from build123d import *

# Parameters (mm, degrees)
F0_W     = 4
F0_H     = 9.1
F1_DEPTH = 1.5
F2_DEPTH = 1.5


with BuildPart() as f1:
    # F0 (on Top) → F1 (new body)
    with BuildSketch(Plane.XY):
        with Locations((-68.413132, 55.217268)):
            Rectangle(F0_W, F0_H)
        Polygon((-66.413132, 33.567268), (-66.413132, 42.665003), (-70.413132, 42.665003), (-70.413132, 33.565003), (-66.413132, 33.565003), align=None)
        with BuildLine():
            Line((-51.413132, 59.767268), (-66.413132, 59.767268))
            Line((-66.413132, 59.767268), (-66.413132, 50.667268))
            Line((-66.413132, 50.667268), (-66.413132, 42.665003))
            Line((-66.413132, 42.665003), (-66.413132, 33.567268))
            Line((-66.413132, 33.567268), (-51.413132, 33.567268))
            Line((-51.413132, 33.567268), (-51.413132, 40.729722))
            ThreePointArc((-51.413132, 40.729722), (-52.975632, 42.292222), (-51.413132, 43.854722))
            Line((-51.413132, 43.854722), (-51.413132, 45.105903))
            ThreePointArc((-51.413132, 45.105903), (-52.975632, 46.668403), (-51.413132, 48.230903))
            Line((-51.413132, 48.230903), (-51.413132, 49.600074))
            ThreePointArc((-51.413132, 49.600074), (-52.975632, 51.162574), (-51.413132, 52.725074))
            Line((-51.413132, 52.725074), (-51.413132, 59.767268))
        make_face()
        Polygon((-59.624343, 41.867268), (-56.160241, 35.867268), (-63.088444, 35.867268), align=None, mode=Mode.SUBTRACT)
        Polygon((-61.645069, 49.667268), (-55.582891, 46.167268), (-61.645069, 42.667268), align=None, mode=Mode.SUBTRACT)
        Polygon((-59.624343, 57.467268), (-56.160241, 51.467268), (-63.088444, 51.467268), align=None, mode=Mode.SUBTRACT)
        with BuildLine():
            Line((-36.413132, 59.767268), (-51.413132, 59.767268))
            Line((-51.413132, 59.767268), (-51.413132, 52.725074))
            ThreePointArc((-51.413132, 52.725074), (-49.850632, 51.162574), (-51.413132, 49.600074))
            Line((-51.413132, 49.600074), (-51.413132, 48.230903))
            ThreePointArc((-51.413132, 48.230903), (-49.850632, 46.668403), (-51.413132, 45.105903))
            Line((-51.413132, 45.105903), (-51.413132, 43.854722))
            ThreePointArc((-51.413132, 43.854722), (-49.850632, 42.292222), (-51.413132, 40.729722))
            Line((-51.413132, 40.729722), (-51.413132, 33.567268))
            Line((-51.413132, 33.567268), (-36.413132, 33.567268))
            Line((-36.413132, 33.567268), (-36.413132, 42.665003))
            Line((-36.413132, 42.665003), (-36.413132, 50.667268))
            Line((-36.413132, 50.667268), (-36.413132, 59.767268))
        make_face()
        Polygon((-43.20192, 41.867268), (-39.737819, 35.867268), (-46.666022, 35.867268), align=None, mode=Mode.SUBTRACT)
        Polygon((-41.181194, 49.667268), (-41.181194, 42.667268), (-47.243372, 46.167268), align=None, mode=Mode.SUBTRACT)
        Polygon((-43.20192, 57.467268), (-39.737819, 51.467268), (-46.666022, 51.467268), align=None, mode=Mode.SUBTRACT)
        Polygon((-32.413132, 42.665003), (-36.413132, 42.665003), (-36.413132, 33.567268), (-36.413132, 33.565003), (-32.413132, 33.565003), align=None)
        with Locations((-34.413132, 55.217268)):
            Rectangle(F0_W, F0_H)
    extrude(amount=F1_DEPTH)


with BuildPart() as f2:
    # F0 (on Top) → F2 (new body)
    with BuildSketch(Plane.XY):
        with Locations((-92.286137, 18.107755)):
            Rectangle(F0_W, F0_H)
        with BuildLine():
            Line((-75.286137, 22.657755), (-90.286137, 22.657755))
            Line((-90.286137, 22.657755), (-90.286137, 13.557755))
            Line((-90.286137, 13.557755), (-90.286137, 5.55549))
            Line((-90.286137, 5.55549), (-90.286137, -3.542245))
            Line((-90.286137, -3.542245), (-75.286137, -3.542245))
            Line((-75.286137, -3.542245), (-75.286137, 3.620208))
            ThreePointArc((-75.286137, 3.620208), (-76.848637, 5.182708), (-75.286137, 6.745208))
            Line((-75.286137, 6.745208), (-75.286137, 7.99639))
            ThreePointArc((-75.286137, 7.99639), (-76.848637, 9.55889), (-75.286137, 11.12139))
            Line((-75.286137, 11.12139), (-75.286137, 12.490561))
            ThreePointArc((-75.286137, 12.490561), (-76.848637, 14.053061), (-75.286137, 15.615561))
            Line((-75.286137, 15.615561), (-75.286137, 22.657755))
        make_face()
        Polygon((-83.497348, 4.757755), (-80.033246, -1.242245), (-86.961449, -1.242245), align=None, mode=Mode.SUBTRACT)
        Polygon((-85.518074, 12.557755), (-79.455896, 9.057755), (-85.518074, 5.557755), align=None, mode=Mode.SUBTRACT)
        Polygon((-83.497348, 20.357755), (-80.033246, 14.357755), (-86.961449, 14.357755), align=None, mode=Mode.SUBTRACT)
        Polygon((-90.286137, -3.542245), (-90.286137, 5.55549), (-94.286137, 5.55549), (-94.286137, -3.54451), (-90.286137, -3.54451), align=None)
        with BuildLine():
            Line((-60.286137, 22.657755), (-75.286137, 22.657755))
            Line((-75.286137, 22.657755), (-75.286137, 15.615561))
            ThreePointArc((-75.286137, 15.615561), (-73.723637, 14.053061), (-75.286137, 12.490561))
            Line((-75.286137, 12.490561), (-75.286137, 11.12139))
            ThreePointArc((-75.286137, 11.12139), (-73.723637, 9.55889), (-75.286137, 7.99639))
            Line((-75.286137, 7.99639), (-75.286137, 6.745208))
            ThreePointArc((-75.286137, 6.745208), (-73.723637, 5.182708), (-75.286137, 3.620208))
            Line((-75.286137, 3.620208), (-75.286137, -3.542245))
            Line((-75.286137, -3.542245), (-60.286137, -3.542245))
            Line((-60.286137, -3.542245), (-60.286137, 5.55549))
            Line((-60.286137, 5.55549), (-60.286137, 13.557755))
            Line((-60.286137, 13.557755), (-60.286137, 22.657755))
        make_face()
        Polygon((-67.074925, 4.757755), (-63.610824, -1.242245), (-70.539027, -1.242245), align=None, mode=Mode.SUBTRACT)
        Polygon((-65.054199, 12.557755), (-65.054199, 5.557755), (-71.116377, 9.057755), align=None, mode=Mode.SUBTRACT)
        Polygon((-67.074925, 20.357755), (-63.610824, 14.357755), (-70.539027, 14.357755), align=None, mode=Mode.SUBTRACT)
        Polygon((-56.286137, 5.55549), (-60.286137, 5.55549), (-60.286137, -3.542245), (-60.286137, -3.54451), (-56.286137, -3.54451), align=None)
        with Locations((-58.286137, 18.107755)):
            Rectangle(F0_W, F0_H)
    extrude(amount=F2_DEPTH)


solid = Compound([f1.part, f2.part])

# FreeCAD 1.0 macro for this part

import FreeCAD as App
import Part
import Sketcher
Q = App.Units.Quantity


def add_polygon(sketch, points):
    """Adds a closed chain of lines whose ends are joined by coincident constraints."""
    first, n = sketch.GeometryCount, len(points)
    for a, b in zip(points, points[1:] + points[:1]):
        sketch.addGeometry(Part.LineSegment(App.Vector(*a, 0), App.Vector(*b, 0)), False)
    for i in range(n):
        sketch.addConstraint(Sketcher.Constraint("Coincident", first + i, 2, first + (i + 1) % n, 1))

doc = App.newDocument("Part")
body = doc.addObject("PartDesign::Body", "Body")

sketch1 = doc.addObject("Sketcher::SketchObject", "Sketch")
body.addObject(sketch1)
sketch1.AttachmentSupport = (doc.XY_Plane, [""])
sketch1.MapMode = "FlatFace"
add_polygon(sketch1, [(-70.413132, 59.767268), (-70.413132, 50.667268), (-66.413132, 50.667268), (-66.413132, 42.665003), (-70.413132, 42.665003), (-70.413132, 33.565003), (-66.413132, 33.565003), (-66.413132, 33.567268), (-36.413132, 33.567268), (-36.413132, 33.565003), (-32.413132, 33.565003), (-32.413132, 42.665003), (-36.413132, 42.665003), (-36.413132, 50.667268), (-32.413132, 50.667268), (-32.413132, 59.767268)])
add_polygon(sketch1, [(-63.088444, 35.867268), (-59.624343, 41.867268), (-56.160241, 35.867268)])
add_polygon(sketch1, [(-61.645069, 42.667268), (-61.645069, 49.667268), (-55.582891, 46.167268)])
sketch1.addGeometry(Part.Circle(App.Vector(-51.413132, 42.292222, 0), App.Vector(0, 0, 1), 1.5625), False)
add_polygon(sketch1, [(-46.666022, 35.867268), (-43.20192, 41.867268), (-39.737819, 35.867268)])
add_polygon(sketch1, [(-47.243372, 46.167268), (-41.181194, 49.667268), (-41.181194, 42.667268)])
sketch1.addGeometry(Part.Circle(App.Vector(-51.413132, 46.668403, 0), App.Vector(0, 0, 1), 1.5625), False)
sketch1.addGeometry(Part.Circle(App.Vector(-51.413132, 51.162574, 0), App.Vector(0, 0, 1), 1.5625), False)
add_polygon(sketch1, [(-63.088444, 51.467268), (-59.624343, 57.467268), (-56.160241, 51.467268)])
add_polygon(sketch1, [(-46.666022, 51.467268), (-43.20192, 57.467268), (-39.737819, 51.467268)])
sketch1.addConstraint(Sketcher.Constraint("Vertical", 0))
sketch1.addConstraint(Sketcher.Constraint("Horizontal", 1))
sketch1.addConstraint(Sketcher.Constraint("Vertical", 2))
sketch1.addConstraint(Sketcher.Constraint("Horizontal", 3))
sketch1.addConstraint(Sketcher.Constraint("Vertical", 4))
sketch1.addConstraint(Sketcher.Constraint("Horizontal", 5))
sketch1.addConstraint(Sketcher.Constraint("Vertical", 6))
sketch1.addConstraint(Sketcher.Constraint("Horizontal", 7))
sketch1.addConstraint(Sketcher.Constraint("Vertical", 8))
sketch1.addConstraint(Sketcher.Constraint("Horizontal", 9))
sketch1.addConstraint(Sketcher.Constraint("Vertical", 10))
sketch1.addConstraint(Sketcher.Constraint("Horizontal", 11))
sketch1.addConstraint(Sketcher.Constraint("Vertical", 12))
sketch1.addConstraint(Sketcher.Constraint("Horizontal", 13))
sketch1.addConstraint(Sketcher.Constraint("Vertical", 14))
sketch1.addConstraint(Sketcher.Constraint("Horizontal", 15))
sketch1.addConstraint(Sketcher.Constraint("Horizontal", 18))
sketch1.addConstraint(Sketcher.Constraint("Vertical", 19))
sketch1.addConstraint(Sketcher.Constraint("Horizontal", 25))
sketch1.addConstraint(Sketcher.Constraint("Vertical", 27))
sketch1.addConstraint(Sketcher.Constraint("Horizontal", 33))
sketch1.addConstraint(Sketcher.Constraint("Horizontal", 36))
sketch1.addConstraint(Sketcher.Constraint("Equal", 22, 29))
sketch1.addConstraint(Sketcher.Constraint("Equal", 29, 30))
sketch1.addConstraint(Sketcher.Constraint("Perpendicular", 16, 20))
sketch1.addConstraint(Sketcher.Constraint("Perpendicular", 17, 21))
sketch1.addConstraint(Sketcher.Constraint("Perpendicular", 20, 23))
sketch1.addConstraint(Sketcher.Constraint("Perpendicular", 21, 24))
sketch1.addConstraint(Sketcher.Constraint("Perpendicular", 24, 26))
sketch1.addConstraint(Sketcher.Constraint("Perpendicular", 23, 28))
sketch1.addConstraint(Sketcher.Constraint("Perpendicular", 28, 31))
sketch1.addConstraint(Sketcher.Constraint("Perpendicular", 26, 32))
sketch1.addConstraint(Sketcher.Constraint("Parallel", 31, 34))
sketch1.addConstraint(Sketcher.Constraint("Parallel", 32, 35))
sketch1.addConstraint(Sketcher.Constraint("Horizontal", 5, 2, 8, 2))
sketch1.addConstraint(Sketcher.Constraint("Horizontal", 3, 2, 10, 2))
sketch1.addConstraint(Sketcher.Constraint("Horizontal", 1, 2, 12, 2))
sketch1.addConstraint(Sketcher.Constraint("Horizontal", 16, 2, 23, 2))
sketch1.addConstraint(Sketcher.Constraint("Horizontal", 18, 2, 24, 2))
sketch1.addConstraint(Sketcher.Constraint("Horizontal", 19, 2, 26, 2))
sketch1.addConstraint(Sketcher.Constraint("Horizontal", 21, 2, 27, 2))
sketch1.addConstraint(Sketcher.Constraint("Horizontal", 20, 2, 28, 2))
sketch1.addConstraint(Sketcher.Constraint("Horizontal", 31, 2, 34, 2))
sketch1.addConstraint(Sketcher.Constraint("Horizontal", 33, 2, 35, 2))
sketch1.addConstraint(Sketcher.Constraint("Vertical", 22, 3, 29, 3))
sketch1.addConstraint(Sketcher.Constraint("Vertical", 29, 3, 30, 3))
sketch1.addConstraint(Sketcher.Constraint("Vertical", 0, 2, 3, 2))
sketch1.addConstraint(Sketcher.Constraint("Vertical", 2, 2, 5, 2))
sketch1.addConstraint(Sketcher.Constraint("Vertical", 8, 2, 11, 2))
sketch1.addConstraint(Sketcher.Constraint("Vertical", 10, 2, 13, 2))
sketch1.addConstraint(Sketcher.Constraint("Vertical", 16, 2, 31, 2))
sketch1.addConstraint(Sketcher.Constraint("Vertical", 17, 2, 32, 2))
sketch1.addConstraint(Sketcher.Constraint("Vertical", 23, 2, 34, 2))
sketch1.addConstraint(Sketcher.Constraint("Equal", 5, 9))
sketch1.addConstraint(Sketcher.Constraint("Equal", 0, 4))
sketch1.addConstraint(Sketcher.Constraint("DistanceX", 1, 1, 1, 2, Q("4 mm")))
sketch1.addConstraint(Sketcher.Constraint("DistanceX", 7, 1, 7, 2, Q("30 mm")))
sketch1.addConstraint(Sketcher.Constraint("DistanceY", 19, 1, 19, 2, Q("7 mm")))
sketch1.addConstraint(Sketcher.Constraint("Angle", 16, Q("60.000004 deg")))
sketch1.addConstraint(Sketcher.Constraint("Diameter", 22, Q("3.125 mm")))
sketch1.addConstraint(Sketcher.Constraint("DistanceY", 0, 2, 0, 1, Q("9.1 mm")))
sketch1.addConstraint(Sketcher.Constraint("DistanceX", 0, 2, 30, 3, Q("19 mm")))
sketch1.addConstraint(Sketcher.Constraint("DistanceY", 17, 2, 16, 2, Q("6 mm")))
sketch1.addConstraint(Sketcher.Constraint("DistanceY", 19, 2, 1, 2, Q("1 mm")))
sketch1.addConstraint(Sketcher.Constraint("DistanceY", 6, 2, 1, 2, Q("17.1 mm")))
sketch1.addConstraint(Sketcher.Constraint("DistanceY", 6, 2, 16, 2, Q("8.3 mm")))
sketch1.addConstraint(Sketcher.Constraint("DistanceY", 19, 2, 31, 2, Q("7.8 mm")))
sketch1.addConstraint(Sketcher.Constraint("DistanceY", 2, 2, 29, 3, Q("4.0034 mm")))
sketch1.addConstraint(Sketcher.Constraint("DistanceY", 2, 2, 2, 1, Q("8.002265 mm")))
sketch1.addConstraint(Sketcher.Constraint("DistanceX", 22, 3, -1, 1, Q("51.413132 mm")))
sketch1.addConstraint(Sketcher.Constraint("DistanceY", -1, 1, 16, 2, Q("41.867268 mm")))
sketch1.addConstraint(Sketcher.Constraint("DistanceX", 17, 2, -1, 1, Q("56.160241 mm")))
sketch1.addConstraint(Sketcher.Constraint("DistanceX", 19, 2, -1, 1, Q("61.645069 mm")))
sketch1.addConstraint(Sketcher.Constraint("DistanceX", 23, 2, -1, 1, Q("43.20192 mm")))
sketch1.addConstraint(Sketcher.Constraint("DistanceY", 22, 3, 29, 3, Q("4.376181 mm")))
sketch1.addConstraint(Sketcher.Constraint("DistanceY", 29, 3, 30, 3, Q("4.494171 mm")))
sketch1.addConstraint(Sketcher.Constraint("DistanceX", 25, 2, 27, 2, Q("5.484828 mm")))
pad1 = doc.addObject("PartDesign::Pad", "Pad")
body.addObject(pad1)
pad1.Profile = sketch1
pad1.Length = 1.5
body2 = doc.addObject("PartDesign::Body", "Body001")

sketch2 = doc.addObject("Sketcher::SketchObject", "Sketch001")
body2.addObject(sketch2)
sketch2.AttachmentSupport = (doc.getObject("XY_Plane001"), [""])
sketch2.MapMode = "FlatFace"
add_polygon(sketch2, [(-94.2861, 22.6578), (-94.2861, 13.5578), (-90.2861, 13.5578), (-90.2861, 5.5555), (-94.2861, 5.5555), (-94.2861, -3.5445), (-90.2861, -3.5445), (-90.2861, -3.5422), (-60.2861, -3.5422), (-60.2861, -3.5445), (-56.2861, -3.5445), (-56.2861, 5.5555), (-60.2861, 5.5555), (-60.2861, 13.5578), (-56.2861, 13.5578), (-56.2861, 22.6578)])
add_polygon(sketch2, [(-86.9614, -1.2422), (-83.4973, 4.7578), (-80.0332, -1.2422)])
add_polygon(sketch2, [(-85.5181, 5.5578), (-85.5181, 12.5578), (-79.4559, 9.0578)])
sketch2.addGeometry(Part.Circle(App.Vector(-75.2861, 5.1827, 0), App.Vector(0, 0, 1), 1.5625), False)
add_polygon(sketch2, [(-70.539, -1.2422), (-67.0749, 4.7578), (-63.6108, -1.2422)])
add_polygon(sketch2, [(-71.1164, 9.0578), (-65.0542, 12.5578), (-65.0542, 5.5578)])
sketch2.addGeometry(Part.Circle(App.Vector(-75.2861, 9.5589, 0), App.Vector(0, 0, 1), 1.5625), False)
sketch2.addGeometry(Part.Circle(App.Vector(-75.2861, 14.0531, 0), App.Vector(0, 0, 1), 1.5625), False)
add_polygon(sketch2, [(-86.9614, 14.3578), (-83.4973, 20.3578), (-80.0332, 14.3578)])
add_polygon(sketch2, [(-70.539, 14.3578), (-67.0749, 20.3578), (-63.6108, 14.3578)])
sketch2.addConstraint(Sketcher.Constraint("Vertical", 0))
sketch2.addConstraint(Sketcher.Constraint("Horizontal", 1))
sketch2.addConstraint(Sketcher.Constraint("Vertical", 2))
sketch2.addConstraint(Sketcher.Constraint("Horizontal", 3))
sketch2.addConstraint(Sketcher.Constraint("Vertical", 4))
sketch2.addConstraint(Sketcher.Constraint("Horizontal", 5))
sketch2.addConstraint(Sketcher.Constraint("Vertical", 6))
sketch2.addConstraint(Sketcher.Constraint("Horizontal", 7))
sketch2.addConstraint(Sketcher.Constraint("Vertical", 8))
sketch2.addConstraint(Sketcher.Constraint("Horizontal", 9))
sketch2.addConstraint(Sketcher.Constraint("Vertical", 10))
sketch2.addConstraint(Sketcher.Constraint("Horizontal", 11))
sketch2.addConstraint(Sketcher.Constraint("Vertical", 12))
sketch2.addConstraint(Sketcher.Constraint("Horizontal", 13))
sketch2.addConstraint(Sketcher.Constraint("Vertical", 14))
sketch2.addConstraint(Sketcher.Constraint("Horizontal", 15))
sketch2.addConstraint(Sketcher.Constraint("Horizontal", 18))
sketch2.addConstraint(Sketcher.Constraint("Vertical", 19))
sketch2.addConstraint(Sketcher.Constraint("Horizontal", 25))
sketch2.addConstraint(Sketcher.Constraint("Vertical", 27))
sketch2.addConstraint(Sketcher.Constraint("Horizontal", 33))
sketch2.addConstraint(Sketcher.Constraint("Horizontal", 36))
sketch2.addConstraint(Sketcher.Constraint("Equal", 22, 29))
sketch2.addConstraint(Sketcher.Constraint("Equal", 29, 30))
sketch2.addConstraint(Sketcher.Constraint("Perpendicular", 16, 20))
sketch2.addConstraint(Sketcher.Constraint("Perpendicular", 17, 21))
sketch2.addConstraint(Sketcher.Constraint("Perpendicular", 20, 23))
sketch2.addConstraint(Sketcher.Constraint("Perpendicular", 21, 24))
sketch2.addConstraint(Sketcher.Constraint("Perpendicular", 24, 26))
sketch2.addConstraint(Sketcher.Constraint("Perpendicular", 23, 28))
sketch2.addConstraint(Sketcher.Constraint("Perpendicular", 28, 31))
sketch2.addConstraint(Sketcher.Constraint("Perpendicular", 26, 32))
sketch2.addConstraint(Sketcher.Constraint("Parallel", 31, 34))
sketch2.addConstraint(Sketcher.Constraint("Parallel", 32, 35))
sketch2.addConstraint(Sketcher.Constraint("Horizontal", 5, 2, 8, 2))
sketch2.addConstraint(Sketcher.Constraint("Horizontal", 3, 2, 10, 2))
sketch2.addConstraint(Sketcher.Constraint("Horizontal", 1, 2, 12, 2))
sketch2.addConstraint(Sketcher.Constraint("Horizontal", 16, 2, 23, 2))
sketch2.addConstraint(Sketcher.Constraint("Horizontal", 18, 2, 24, 2))
sketch2.addConstraint(Sketcher.Constraint("Horizontal", 19, 2, 26, 2))
sketch2.addConstraint(Sketcher.Constraint("Horizontal", 21, 2, 27, 2))
sketch2.addConstraint(Sketcher.Constraint("Horizontal", 20, 2, 28, 2))
sketch2.addConstraint(Sketcher.Constraint("Horizontal", 31, 2, 34, 2))
sketch2.addConstraint(Sketcher.Constraint("Horizontal", 33, 2, 35, 2))
sketch2.addConstraint(Sketcher.Constraint("Vertical", 22, 3, 29, 3))
sketch2.addConstraint(Sketcher.Constraint("Vertical", 29, 3, 30, 3))
sketch2.addConstraint(Sketcher.Constraint("Vertical", 0, 2, 3, 2))
sketch2.addConstraint(Sketcher.Constraint("Vertical", 2, 2, 5, 2))
sketch2.addConstraint(Sketcher.Constraint("Vertical", 8, 2, 11, 2))
sketch2.addConstraint(Sketcher.Constraint("Vertical", 10, 2, 13, 2))
sketch2.addConstraint(Sketcher.Constraint("Vertical", 16, 2, 31, 2))
sketch2.addConstraint(Sketcher.Constraint("Vertical", 17, 2, 32, 2))
sketch2.addConstraint(Sketcher.Constraint("Vertical", 23, 2, 34, 2))
sketch2.addConstraint(Sketcher.Constraint("Equal", 5, 9))
sketch2.addConstraint(Sketcher.Constraint("Equal", 0, 4))
sketch2.addConstraint(Sketcher.Constraint("DistanceX", 1, 1, 1, 2, Q("4 mm")))
sketch2.addConstraint(Sketcher.Constraint("DistanceX", 7, 1, 7, 2, Q("30 mm")))
sketch2.addConstraint(Sketcher.Constraint("DistanceY", 19, 1, 19, 2, Q("7 mm")))
sketch2.addConstraint(Sketcher.Constraint("Angle", 16, Q("60.000004 deg")))
sketch2.addConstraint(Sketcher.Constraint("Diameter", 22, Q("3.125 mm")))
sketch2.addConstraint(Sketcher.Constraint("DistanceY", 0, 2, 0, 1, Q("9.1 mm")))
sketch2.addConstraint(Sketcher.Constraint("DistanceX", 0, 2, 30, 3, Q("19 mm")))
sketch2.addConstraint(Sketcher.Constraint("DistanceY", 17, 2, 16, 2, Q("6 mm")))
sketch2.addConstraint(Sketcher.Constraint("DistanceY", 19, 2, 1, 2, Q("1 mm")))
sketch2.addConstraint(Sketcher.Constraint("DistanceY", 6, 2, 1, 2, Q("17.1 mm")))
sketch2.addConstraint(Sketcher.Constraint("DistanceY", 6, 2, 16, 2, Q("8.3 mm")))
sketch2.addConstraint(Sketcher.Constraint("DistanceY", 19, 2, 31, 2, Q("7.8 mm")))
sketch2.addConstraint(Sketcher.Constraint("DistanceX", 26, 2, -1, 1, Q("65.054199 mm")))
sketch2.addConstraint(Sketcher.Constraint("DistanceY", 2, 2, 29, 3, Q("4.0034 mm")))
sketch2.addConstraint(Sketcher.Constraint("DistanceY", 2, 2, 2, 1, Q("8.002265 mm")))
sketch2.addConstraint(Sketcher.Constraint("DistanceY", -1, 1, 29, 3, Q("9.55889 mm")))
sketch2.addConstraint(Sketcher.Constraint("DistanceY", -1, 1, 30, 3, Q("14.053061 mm")))
sketch2.addConstraint(Sketcher.Constraint("DistanceX", 16, 2, -1, 1, Q("83.497348 mm")))
sketch2.addConstraint(Sketcher.Constraint("DistanceY", 22, 3, 2, 2, Q("0.372782 mm")))
sketch2.addConstraint(Sketcher.Constraint("DistanceX", 2, 2, 16, 2, Q("6.788789 mm")))
sketch2.addConstraint(Sketcher.Constraint("DistanceX", 20, 2, 29, 3, Q("4.169759 mm")))
sketch2.addConstraint(Sketcher.Constraint("DistanceX", 22, 3, 25, 2, Q("4.74711 mm")))
pad2 = doc.addObject("PartDesign::Pad", "Pad001")
body2.addObject(pad2)
pad2.Profile = sketch2
pad2.Length = 1.5

doc.recompute()
